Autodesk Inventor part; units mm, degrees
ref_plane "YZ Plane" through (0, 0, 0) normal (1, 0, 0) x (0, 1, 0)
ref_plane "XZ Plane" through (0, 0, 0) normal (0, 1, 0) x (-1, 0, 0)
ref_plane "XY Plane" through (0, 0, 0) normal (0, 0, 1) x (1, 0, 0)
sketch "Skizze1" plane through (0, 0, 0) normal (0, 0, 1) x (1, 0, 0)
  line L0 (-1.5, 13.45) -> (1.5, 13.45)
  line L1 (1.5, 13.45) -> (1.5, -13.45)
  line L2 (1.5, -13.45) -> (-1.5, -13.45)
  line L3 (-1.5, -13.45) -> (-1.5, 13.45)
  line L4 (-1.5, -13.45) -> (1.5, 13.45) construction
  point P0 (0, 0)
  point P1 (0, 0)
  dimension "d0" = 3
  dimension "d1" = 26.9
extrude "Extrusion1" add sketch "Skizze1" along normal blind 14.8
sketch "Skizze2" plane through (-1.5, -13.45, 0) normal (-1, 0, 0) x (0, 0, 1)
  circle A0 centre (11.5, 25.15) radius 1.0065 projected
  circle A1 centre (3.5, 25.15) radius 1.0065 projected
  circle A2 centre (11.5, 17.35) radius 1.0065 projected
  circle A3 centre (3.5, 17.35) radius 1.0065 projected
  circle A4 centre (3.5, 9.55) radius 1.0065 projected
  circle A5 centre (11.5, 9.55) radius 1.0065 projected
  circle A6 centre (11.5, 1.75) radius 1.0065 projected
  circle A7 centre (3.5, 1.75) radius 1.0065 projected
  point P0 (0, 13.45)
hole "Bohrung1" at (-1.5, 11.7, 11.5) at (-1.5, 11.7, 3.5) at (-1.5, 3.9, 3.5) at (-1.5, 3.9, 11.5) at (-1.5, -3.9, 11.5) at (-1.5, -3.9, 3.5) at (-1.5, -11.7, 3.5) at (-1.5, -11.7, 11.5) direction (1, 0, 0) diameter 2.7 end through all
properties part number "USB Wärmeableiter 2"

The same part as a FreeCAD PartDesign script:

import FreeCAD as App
import Part
import Sketcher
from FreeCAD import Vector

doc = App.newDocument("Part")
params = doc.addObject("Spreadsheet::Sheet", "Params")
for row, (alias, value) in enumerate([
    ("sketch1_width", "3 mm"),
    ("sketch1_height", "26.9 mm"),
    ("pad1_length", "14.8 mm"),
    ("sketch2_diameter", "2.7 mm"),
    ("hole_diameter", "2.7 mm"),
], start=1):
    params.set(f"A{row}", alias)
    params.set(f"B{row}", "=" + value)
    params.setAlias(f"B{row}", alias)

body = doc.addObject("PartDesign::Body", "Body")

# Sketch on XY plane
sketch1 = body.newObject("Sketcher::SketchObject", "Sketch")
sketch1.AttachmentSupport = (doc.getObject("XY_Plane"), [""])
sketch1.MapMode = "FlatFace"
sketch1.addGeometry(Part.LineSegment(Vector(1.5, 13.4, 0), Vector(-1.5, 13.4, 0)), False)
sketch1.addGeometry(Part.LineSegment(Vector(-1.5, 13.4, 0), Vector(-1.5, -13.4, 0)), False)
sketch1.addGeometry(Part.LineSegment(Vector(-1.5, -13.4, 0), Vector(1.5, -13.4, 0)), False)
sketch1.addGeometry(Part.LineSegment(Vector(1.5, -13.4, 0), Vector(1.5, 13.4, 0)), False)
sketch1.addConstraint(Sketcher.Constraint("Coincident", 0, 2, 1, 1))
sketch1.addConstraint(Sketcher.Constraint("Coincident", 1, 2, 2, 1))
sketch1.addConstraint(Sketcher.Constraint("Coincident", 2, 2, 3, 1))
sketch1.addConstraint(Sketcher.Constraint("Coincident", 3, 2, 0, 1))
sketch1.addConstraint(Sketcher.Constraint("Horizontal", 0))
sketch1.addConstraint(Sketcher.Constraint("Vertical", 1))
sketch1.addConstraint(Sketcher.Constraint("Horizontal", 2))
sketch1.addConstraint(Sketcher.Constraint("Vertical", 3))
sketch1.addConstraint(Sketcher.Constraint("Symmetric", 0, 2, 2, 2, -1, 1))
sketch1.addConstraint(Sketcher.Constraint("DistanceX", 0, 2, 0, 1, 3.0))
sketch1.addConstraint(Sketcher.Constraint("DistanceY", 1, 2, 1, 1, 26.9))
sketch1.setExpression("Constraints[9]", "Params.sketch1_width")
sketch1.setExpression("Constraints[10]", "Params.sketch1_height")
pad1 = body.newObject("PartDesign::Pad", "Pad")
pad1.Profile = sketch1
pad1.setExpression("Length", "Params.pad1_length")

# Sketch on YZ plane
sketch2 = body.newObject("Sketcher::SketchObject", "Sketch001")
sketch2.AttachmentSupport = (doc.getObject("YZ_Plane"), [""])
sketch2.MapMode = "FlatFace"
sketch2.AttachmentOffset = App.Placement(Vector(0, 0, -1.5), App.Rotation())
sketch2.addGeometry(Part.Circle(Vector(11.7, 11.5, 0), Vector(0, 0, 1), 1.4), False)
sketch2.addGeometry(Part.Circle(Vector(11.7, 3.5, 0), Vector(0, 0, 1), 1.4), False)
sketch2.addGeometry(Part.Circle(Vector(3.9, 3.5, 0), Vector(0, 0, 1), 1.4), False)
sketch2.addGeometry(Part.Circle(Vector(3.9, 11.5, 0), Vector(0, 0, 1), 1.4), False)
sketch2.addGeometry(Part.Circle(Vector(-3.9, 11.5, 0), Vector(0, 0, 1), 1.4), False)
sketch2.addGeometry(Part.Circle(Vector(-3.9, 3.5, 0), Vector(0, 0, 1), 1.4), False)
sketch2.addGeometry(Part.Circle(Vector(-11.7, 3.5, 0), Vector(0, 0, 1), 1.4), False)
sketch2.addGeometry(Part.Circle(Vector(-11.7, 11.5, 0), Vector(0, 0, 1), 1.4), False)
sketch2.addConstraint(Sketcher.Constraint("Equal", 0, 1))
sketch2.addConstraint(Sketcher.Constraint("Equal", 1, 2))
sketch2.addConstraint(Sketcher.Constraint("Equal", 2, 3))
sketch2.addConstraint(Sketcher.Constraint("Equal", 3, 4))
sketch2.addConstraint(Sketcher.Constraint("Equal", 4, 5))
sketch2.addConstraint(Sketcher.Constraint("Equal", 5, 6))
sketch2.addConstraint(Sketcher.Constraint("Equal", 6, 7))
sketch2.addConstraint(Sketcher.Constraint("Symmetric", 3, 3, 4, 3, -2))
sketch2.addConstraint(Sketcher.Constraint("Symmetric", 2, 3, 5, 3, -2))
sketch2.addConstraint(Sketcher.Constraint("Symmetric", 1, 3, 6, 3, -2))
sketch2.addConstraint(Sketcher.Constraint("Symmetric", 0, 3, 7, 3, -2))
sketch2.addConstraint(Sketcher.Constraint("Horizontal", 1, 3, 2, 3))
sketch2.addConstraint(Sketcher.Constraint("Horizontal", 0, 3, 3, 3))
sketch2.addConstraint(Sketcher.Constraint("Vertical", 0, 3, 1, 3))
sketch2.addConstraint(Sketcher.Constraint("Vertical", 2, 3, 3, 3))
sketch2.addConstraint(Sketcher.Constraint("Diameter", 0, 2.7))
sketch2.addConstraint(Sketcher.Constraint("DistanceY", 1, 3, 0, 3, 8.0))
sketch2.addConstraint(Sketcher.Constraint("DistanceX", -1, 1, 0, 3, 11.7))
sketch2.addConstraint(Sketcher.Constraint("DistanceY", -1, 1, 0, 3, 11.5))
sketch2.addConstraint(Sketcher.Constraint("DistanceX", -1, 1, 2, 3, 3.9))
sketch2.setExpression("Constraints[15]", "Params.sketch2_diameter")
doc.recompute()
hole = body.newObject("PartDesign::Hole", "Hole")
hole.Profile = sketch2
hole.ThreadType = "None"
hole.setExpression("Diameter", "Params.hole_diameter")
hole.DepthType = "ThroughAll"
hole.Reversed = True

doc.recompute()
